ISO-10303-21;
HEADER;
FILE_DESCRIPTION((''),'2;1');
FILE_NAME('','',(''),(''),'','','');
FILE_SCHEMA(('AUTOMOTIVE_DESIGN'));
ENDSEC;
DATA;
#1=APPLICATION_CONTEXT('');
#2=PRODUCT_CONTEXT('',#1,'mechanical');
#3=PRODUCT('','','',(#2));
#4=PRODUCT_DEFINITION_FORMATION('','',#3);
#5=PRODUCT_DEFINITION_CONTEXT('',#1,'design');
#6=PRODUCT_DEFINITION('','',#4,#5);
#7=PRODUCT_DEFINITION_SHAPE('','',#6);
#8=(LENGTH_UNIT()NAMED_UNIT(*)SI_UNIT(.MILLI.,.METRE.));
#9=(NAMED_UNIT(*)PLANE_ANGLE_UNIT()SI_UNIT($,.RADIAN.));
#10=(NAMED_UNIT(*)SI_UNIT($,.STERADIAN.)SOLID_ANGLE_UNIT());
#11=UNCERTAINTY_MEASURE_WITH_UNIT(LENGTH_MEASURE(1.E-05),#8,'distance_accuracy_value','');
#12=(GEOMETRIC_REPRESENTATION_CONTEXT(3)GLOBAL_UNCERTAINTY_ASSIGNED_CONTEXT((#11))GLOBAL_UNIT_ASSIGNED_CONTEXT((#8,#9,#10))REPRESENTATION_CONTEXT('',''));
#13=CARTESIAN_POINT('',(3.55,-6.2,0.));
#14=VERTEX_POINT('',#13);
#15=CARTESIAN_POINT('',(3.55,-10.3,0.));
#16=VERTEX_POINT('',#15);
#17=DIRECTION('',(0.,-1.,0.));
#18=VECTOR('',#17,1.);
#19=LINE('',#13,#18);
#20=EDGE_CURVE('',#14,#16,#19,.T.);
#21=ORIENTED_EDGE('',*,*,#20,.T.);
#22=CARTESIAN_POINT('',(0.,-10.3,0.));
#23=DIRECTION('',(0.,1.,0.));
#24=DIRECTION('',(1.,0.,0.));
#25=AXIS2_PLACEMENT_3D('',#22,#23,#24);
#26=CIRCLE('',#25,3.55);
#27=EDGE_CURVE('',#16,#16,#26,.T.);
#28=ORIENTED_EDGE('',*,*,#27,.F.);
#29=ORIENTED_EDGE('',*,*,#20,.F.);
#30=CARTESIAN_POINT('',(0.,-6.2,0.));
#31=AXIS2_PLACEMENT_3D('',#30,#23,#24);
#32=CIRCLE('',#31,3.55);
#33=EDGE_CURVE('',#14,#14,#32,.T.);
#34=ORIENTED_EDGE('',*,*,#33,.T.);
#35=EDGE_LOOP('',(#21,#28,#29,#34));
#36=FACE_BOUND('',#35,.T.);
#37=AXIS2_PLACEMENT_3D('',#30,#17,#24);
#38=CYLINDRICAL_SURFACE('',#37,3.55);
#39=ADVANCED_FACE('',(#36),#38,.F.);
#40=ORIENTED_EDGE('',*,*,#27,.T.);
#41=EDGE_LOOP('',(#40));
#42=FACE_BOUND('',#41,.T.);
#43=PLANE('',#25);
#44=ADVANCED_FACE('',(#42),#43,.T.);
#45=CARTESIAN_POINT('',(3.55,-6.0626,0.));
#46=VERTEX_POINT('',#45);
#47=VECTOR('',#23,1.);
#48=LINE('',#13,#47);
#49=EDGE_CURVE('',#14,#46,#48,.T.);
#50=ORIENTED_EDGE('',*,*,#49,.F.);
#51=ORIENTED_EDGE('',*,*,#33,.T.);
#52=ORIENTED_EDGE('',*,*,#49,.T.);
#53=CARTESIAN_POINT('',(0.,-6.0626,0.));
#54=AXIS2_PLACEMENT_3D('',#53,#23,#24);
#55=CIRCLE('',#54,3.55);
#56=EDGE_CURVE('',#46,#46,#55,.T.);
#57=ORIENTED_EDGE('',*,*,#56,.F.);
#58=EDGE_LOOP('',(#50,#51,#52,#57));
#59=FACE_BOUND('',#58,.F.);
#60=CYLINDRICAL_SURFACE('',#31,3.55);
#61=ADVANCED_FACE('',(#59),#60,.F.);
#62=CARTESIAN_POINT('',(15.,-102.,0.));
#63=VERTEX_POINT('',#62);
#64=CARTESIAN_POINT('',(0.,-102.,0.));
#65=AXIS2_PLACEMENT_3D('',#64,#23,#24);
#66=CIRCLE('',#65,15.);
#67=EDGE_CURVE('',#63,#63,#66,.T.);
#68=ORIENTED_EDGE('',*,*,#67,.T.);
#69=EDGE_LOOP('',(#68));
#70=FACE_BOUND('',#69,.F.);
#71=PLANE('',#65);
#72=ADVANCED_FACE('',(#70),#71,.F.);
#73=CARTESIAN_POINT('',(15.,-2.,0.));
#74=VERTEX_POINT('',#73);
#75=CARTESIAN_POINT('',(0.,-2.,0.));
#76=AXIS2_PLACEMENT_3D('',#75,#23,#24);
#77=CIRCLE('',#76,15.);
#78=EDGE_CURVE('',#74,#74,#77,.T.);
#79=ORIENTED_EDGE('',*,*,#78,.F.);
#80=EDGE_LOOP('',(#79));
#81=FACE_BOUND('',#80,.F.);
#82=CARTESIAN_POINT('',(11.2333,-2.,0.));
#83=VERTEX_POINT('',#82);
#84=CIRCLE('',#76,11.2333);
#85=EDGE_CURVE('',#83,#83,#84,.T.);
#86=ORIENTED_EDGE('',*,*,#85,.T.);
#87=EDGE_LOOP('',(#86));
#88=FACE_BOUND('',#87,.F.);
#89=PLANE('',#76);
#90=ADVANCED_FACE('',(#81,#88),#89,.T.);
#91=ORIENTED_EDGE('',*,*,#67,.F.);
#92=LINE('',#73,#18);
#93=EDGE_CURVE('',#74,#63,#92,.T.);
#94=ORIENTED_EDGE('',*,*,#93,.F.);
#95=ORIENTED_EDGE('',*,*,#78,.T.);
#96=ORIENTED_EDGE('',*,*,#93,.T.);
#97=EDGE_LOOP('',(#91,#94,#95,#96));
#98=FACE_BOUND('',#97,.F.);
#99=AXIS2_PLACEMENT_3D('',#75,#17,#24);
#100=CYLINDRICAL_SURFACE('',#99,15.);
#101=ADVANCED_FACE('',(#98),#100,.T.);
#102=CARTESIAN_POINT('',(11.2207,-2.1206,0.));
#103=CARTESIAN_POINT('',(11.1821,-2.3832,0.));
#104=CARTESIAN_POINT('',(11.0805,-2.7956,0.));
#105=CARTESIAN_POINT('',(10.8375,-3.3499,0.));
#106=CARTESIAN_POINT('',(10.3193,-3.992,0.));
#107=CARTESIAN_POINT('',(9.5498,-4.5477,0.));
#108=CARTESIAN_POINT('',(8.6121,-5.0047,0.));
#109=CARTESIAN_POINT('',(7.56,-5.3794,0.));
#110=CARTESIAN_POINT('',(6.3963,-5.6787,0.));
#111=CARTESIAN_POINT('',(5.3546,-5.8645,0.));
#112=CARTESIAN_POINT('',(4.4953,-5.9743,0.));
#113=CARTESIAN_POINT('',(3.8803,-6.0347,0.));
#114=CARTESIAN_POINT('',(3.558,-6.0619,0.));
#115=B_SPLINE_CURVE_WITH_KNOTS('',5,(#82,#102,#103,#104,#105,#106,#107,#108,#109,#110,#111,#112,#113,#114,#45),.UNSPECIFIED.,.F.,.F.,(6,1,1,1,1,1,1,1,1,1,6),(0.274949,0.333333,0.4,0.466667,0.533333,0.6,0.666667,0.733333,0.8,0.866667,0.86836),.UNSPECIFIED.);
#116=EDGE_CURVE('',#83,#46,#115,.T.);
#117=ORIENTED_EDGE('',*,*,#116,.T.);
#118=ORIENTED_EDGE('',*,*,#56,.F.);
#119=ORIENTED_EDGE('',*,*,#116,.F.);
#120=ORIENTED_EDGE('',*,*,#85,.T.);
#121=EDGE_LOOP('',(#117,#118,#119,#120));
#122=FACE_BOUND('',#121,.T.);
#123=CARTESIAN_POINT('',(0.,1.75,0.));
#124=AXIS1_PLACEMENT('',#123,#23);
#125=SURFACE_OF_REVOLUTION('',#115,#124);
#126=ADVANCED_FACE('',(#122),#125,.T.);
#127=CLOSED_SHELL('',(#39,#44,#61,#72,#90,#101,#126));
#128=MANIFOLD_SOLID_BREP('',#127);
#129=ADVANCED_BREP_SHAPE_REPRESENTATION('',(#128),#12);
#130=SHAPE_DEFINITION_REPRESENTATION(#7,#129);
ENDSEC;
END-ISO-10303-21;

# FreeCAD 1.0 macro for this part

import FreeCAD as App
import Part
import Sketcher
from FreeCAD import Vector

doc = App.newDocument("Part")
body = doc.addObject("PartDesign::Body", "Body")

sketch1 = body.newObject("Sketcher::SketchObject", "Sketch")
sketch1.AttachmentSupport = (doc.getObject("XY_Plane"), [""])
sketch1.MapMode = "FlatFace"
sketch1.addGeometry([
    Part.LineSegment(Vector(15, -2, 0), Vector(11.2333, -2, 0)),
    Part.BSplineCurve([Vector(11.2333, -2, 0), Vector(11.2207, -2.1206, 0), Vector(11.1821, -2.3832, 0), Vector(11.0805, -2.7956, 0), Vector(10.8375, -3.3499, 0), Vector(10.3193, -3.992, 0), Vector(9.5498, -4.5477, 0), Vector(8.6121, -5.0047, 0), Vector(7.56, -5.3794, 0), Vector(6.3963, -5.6787, 0), Vector(5.3546, -5.8645, 0), Vector(4.4953, -5.9743, 0), Vector(3.8803, -6.0347, 0), Vector(3.558, -6.0619, 0), Vector(3.55, -6.0626, 0)], [6, 1, 1, 1, 1, 1, 1, 1, 1, 1, 6], [0.274949, 0.333333, 0.4, 0.466667, 0.533333, 0.6, 0.666667, 0.733333, 0.8, 0.866667, 0.86836], False, 5, [1, 1, 1, 1, 1, 1, 1, 1, 1, 1, 1, 1, 1, 1, 1], False),
    Part.LineSegment(Vector(3.55, -6.0626, 0), Vector(3.55, -10.3, 0)),
    Part.LineSegment(Vector(3.55, -10.3, 0), Vector(0, -10.3, 0)),
    Part.LineSegment(Vector(0, -10.3, 0), Vector(0, -102, 0)),
    Part.LineSegment(Vector(0, -102, 0), Vector(15, -102, 0)),
    Part.LineSegment(Vector(15, -102, 0), Vector(15, -2, 0)),
], False)
sketch1.addConstraint([
    Sketcher.Constraint("Block", 1),
    Sketcher.Constraint("Coincident", 0, 2, 1, 1),
    Sketcher.Constraint("Coincident", 1, 2, 2, 1),
    Sketcher.Constraint("Coincident", 2, 2, 3, 1),
    Sketcher.Constraint("Coincident", 3, 2, 4, 1),
    Sketcher.Constraint("Coincident", 4, 2, 5, 1),
    Sketcher.Constraint("Coincident", 5, 2, 6, 1),
    Sketcher.Constraint("Coincident", 6, 2, 0, 1),
    Sketcher.Constraint("Horizontal", 0),
    Sketcher.Constraint("Vertical", 2),
    Sketcher.Constraint("Horizontal", 3),
    Sketcher.Constraint("Vertical", 4),
    Sketcher.Constraint("Horizontal", 5),
    Sketcher.Constraint("Vertical", 6),
    Sketcher.Constraint("PointOnObject", 3, 2, -2),
    Sketcher.Constraint("DistanceX", 5, 1, 5, 2, 15.0),
    Sketcher.Constraint("DistanceY", 6, 1, 6, 2, 100.0),
    Sketcher.Constraint("DistanceY", 4, 2, 4, 1, 91.7),
])
revolution = body.newObject("PartDesign::Revolution", "Revolution")
revolution.Profile = sketch1
revolution.ReferenceAxis = (sketch1, ["V_Axis"])
revolution.Angle = 360

doc.recompute()
